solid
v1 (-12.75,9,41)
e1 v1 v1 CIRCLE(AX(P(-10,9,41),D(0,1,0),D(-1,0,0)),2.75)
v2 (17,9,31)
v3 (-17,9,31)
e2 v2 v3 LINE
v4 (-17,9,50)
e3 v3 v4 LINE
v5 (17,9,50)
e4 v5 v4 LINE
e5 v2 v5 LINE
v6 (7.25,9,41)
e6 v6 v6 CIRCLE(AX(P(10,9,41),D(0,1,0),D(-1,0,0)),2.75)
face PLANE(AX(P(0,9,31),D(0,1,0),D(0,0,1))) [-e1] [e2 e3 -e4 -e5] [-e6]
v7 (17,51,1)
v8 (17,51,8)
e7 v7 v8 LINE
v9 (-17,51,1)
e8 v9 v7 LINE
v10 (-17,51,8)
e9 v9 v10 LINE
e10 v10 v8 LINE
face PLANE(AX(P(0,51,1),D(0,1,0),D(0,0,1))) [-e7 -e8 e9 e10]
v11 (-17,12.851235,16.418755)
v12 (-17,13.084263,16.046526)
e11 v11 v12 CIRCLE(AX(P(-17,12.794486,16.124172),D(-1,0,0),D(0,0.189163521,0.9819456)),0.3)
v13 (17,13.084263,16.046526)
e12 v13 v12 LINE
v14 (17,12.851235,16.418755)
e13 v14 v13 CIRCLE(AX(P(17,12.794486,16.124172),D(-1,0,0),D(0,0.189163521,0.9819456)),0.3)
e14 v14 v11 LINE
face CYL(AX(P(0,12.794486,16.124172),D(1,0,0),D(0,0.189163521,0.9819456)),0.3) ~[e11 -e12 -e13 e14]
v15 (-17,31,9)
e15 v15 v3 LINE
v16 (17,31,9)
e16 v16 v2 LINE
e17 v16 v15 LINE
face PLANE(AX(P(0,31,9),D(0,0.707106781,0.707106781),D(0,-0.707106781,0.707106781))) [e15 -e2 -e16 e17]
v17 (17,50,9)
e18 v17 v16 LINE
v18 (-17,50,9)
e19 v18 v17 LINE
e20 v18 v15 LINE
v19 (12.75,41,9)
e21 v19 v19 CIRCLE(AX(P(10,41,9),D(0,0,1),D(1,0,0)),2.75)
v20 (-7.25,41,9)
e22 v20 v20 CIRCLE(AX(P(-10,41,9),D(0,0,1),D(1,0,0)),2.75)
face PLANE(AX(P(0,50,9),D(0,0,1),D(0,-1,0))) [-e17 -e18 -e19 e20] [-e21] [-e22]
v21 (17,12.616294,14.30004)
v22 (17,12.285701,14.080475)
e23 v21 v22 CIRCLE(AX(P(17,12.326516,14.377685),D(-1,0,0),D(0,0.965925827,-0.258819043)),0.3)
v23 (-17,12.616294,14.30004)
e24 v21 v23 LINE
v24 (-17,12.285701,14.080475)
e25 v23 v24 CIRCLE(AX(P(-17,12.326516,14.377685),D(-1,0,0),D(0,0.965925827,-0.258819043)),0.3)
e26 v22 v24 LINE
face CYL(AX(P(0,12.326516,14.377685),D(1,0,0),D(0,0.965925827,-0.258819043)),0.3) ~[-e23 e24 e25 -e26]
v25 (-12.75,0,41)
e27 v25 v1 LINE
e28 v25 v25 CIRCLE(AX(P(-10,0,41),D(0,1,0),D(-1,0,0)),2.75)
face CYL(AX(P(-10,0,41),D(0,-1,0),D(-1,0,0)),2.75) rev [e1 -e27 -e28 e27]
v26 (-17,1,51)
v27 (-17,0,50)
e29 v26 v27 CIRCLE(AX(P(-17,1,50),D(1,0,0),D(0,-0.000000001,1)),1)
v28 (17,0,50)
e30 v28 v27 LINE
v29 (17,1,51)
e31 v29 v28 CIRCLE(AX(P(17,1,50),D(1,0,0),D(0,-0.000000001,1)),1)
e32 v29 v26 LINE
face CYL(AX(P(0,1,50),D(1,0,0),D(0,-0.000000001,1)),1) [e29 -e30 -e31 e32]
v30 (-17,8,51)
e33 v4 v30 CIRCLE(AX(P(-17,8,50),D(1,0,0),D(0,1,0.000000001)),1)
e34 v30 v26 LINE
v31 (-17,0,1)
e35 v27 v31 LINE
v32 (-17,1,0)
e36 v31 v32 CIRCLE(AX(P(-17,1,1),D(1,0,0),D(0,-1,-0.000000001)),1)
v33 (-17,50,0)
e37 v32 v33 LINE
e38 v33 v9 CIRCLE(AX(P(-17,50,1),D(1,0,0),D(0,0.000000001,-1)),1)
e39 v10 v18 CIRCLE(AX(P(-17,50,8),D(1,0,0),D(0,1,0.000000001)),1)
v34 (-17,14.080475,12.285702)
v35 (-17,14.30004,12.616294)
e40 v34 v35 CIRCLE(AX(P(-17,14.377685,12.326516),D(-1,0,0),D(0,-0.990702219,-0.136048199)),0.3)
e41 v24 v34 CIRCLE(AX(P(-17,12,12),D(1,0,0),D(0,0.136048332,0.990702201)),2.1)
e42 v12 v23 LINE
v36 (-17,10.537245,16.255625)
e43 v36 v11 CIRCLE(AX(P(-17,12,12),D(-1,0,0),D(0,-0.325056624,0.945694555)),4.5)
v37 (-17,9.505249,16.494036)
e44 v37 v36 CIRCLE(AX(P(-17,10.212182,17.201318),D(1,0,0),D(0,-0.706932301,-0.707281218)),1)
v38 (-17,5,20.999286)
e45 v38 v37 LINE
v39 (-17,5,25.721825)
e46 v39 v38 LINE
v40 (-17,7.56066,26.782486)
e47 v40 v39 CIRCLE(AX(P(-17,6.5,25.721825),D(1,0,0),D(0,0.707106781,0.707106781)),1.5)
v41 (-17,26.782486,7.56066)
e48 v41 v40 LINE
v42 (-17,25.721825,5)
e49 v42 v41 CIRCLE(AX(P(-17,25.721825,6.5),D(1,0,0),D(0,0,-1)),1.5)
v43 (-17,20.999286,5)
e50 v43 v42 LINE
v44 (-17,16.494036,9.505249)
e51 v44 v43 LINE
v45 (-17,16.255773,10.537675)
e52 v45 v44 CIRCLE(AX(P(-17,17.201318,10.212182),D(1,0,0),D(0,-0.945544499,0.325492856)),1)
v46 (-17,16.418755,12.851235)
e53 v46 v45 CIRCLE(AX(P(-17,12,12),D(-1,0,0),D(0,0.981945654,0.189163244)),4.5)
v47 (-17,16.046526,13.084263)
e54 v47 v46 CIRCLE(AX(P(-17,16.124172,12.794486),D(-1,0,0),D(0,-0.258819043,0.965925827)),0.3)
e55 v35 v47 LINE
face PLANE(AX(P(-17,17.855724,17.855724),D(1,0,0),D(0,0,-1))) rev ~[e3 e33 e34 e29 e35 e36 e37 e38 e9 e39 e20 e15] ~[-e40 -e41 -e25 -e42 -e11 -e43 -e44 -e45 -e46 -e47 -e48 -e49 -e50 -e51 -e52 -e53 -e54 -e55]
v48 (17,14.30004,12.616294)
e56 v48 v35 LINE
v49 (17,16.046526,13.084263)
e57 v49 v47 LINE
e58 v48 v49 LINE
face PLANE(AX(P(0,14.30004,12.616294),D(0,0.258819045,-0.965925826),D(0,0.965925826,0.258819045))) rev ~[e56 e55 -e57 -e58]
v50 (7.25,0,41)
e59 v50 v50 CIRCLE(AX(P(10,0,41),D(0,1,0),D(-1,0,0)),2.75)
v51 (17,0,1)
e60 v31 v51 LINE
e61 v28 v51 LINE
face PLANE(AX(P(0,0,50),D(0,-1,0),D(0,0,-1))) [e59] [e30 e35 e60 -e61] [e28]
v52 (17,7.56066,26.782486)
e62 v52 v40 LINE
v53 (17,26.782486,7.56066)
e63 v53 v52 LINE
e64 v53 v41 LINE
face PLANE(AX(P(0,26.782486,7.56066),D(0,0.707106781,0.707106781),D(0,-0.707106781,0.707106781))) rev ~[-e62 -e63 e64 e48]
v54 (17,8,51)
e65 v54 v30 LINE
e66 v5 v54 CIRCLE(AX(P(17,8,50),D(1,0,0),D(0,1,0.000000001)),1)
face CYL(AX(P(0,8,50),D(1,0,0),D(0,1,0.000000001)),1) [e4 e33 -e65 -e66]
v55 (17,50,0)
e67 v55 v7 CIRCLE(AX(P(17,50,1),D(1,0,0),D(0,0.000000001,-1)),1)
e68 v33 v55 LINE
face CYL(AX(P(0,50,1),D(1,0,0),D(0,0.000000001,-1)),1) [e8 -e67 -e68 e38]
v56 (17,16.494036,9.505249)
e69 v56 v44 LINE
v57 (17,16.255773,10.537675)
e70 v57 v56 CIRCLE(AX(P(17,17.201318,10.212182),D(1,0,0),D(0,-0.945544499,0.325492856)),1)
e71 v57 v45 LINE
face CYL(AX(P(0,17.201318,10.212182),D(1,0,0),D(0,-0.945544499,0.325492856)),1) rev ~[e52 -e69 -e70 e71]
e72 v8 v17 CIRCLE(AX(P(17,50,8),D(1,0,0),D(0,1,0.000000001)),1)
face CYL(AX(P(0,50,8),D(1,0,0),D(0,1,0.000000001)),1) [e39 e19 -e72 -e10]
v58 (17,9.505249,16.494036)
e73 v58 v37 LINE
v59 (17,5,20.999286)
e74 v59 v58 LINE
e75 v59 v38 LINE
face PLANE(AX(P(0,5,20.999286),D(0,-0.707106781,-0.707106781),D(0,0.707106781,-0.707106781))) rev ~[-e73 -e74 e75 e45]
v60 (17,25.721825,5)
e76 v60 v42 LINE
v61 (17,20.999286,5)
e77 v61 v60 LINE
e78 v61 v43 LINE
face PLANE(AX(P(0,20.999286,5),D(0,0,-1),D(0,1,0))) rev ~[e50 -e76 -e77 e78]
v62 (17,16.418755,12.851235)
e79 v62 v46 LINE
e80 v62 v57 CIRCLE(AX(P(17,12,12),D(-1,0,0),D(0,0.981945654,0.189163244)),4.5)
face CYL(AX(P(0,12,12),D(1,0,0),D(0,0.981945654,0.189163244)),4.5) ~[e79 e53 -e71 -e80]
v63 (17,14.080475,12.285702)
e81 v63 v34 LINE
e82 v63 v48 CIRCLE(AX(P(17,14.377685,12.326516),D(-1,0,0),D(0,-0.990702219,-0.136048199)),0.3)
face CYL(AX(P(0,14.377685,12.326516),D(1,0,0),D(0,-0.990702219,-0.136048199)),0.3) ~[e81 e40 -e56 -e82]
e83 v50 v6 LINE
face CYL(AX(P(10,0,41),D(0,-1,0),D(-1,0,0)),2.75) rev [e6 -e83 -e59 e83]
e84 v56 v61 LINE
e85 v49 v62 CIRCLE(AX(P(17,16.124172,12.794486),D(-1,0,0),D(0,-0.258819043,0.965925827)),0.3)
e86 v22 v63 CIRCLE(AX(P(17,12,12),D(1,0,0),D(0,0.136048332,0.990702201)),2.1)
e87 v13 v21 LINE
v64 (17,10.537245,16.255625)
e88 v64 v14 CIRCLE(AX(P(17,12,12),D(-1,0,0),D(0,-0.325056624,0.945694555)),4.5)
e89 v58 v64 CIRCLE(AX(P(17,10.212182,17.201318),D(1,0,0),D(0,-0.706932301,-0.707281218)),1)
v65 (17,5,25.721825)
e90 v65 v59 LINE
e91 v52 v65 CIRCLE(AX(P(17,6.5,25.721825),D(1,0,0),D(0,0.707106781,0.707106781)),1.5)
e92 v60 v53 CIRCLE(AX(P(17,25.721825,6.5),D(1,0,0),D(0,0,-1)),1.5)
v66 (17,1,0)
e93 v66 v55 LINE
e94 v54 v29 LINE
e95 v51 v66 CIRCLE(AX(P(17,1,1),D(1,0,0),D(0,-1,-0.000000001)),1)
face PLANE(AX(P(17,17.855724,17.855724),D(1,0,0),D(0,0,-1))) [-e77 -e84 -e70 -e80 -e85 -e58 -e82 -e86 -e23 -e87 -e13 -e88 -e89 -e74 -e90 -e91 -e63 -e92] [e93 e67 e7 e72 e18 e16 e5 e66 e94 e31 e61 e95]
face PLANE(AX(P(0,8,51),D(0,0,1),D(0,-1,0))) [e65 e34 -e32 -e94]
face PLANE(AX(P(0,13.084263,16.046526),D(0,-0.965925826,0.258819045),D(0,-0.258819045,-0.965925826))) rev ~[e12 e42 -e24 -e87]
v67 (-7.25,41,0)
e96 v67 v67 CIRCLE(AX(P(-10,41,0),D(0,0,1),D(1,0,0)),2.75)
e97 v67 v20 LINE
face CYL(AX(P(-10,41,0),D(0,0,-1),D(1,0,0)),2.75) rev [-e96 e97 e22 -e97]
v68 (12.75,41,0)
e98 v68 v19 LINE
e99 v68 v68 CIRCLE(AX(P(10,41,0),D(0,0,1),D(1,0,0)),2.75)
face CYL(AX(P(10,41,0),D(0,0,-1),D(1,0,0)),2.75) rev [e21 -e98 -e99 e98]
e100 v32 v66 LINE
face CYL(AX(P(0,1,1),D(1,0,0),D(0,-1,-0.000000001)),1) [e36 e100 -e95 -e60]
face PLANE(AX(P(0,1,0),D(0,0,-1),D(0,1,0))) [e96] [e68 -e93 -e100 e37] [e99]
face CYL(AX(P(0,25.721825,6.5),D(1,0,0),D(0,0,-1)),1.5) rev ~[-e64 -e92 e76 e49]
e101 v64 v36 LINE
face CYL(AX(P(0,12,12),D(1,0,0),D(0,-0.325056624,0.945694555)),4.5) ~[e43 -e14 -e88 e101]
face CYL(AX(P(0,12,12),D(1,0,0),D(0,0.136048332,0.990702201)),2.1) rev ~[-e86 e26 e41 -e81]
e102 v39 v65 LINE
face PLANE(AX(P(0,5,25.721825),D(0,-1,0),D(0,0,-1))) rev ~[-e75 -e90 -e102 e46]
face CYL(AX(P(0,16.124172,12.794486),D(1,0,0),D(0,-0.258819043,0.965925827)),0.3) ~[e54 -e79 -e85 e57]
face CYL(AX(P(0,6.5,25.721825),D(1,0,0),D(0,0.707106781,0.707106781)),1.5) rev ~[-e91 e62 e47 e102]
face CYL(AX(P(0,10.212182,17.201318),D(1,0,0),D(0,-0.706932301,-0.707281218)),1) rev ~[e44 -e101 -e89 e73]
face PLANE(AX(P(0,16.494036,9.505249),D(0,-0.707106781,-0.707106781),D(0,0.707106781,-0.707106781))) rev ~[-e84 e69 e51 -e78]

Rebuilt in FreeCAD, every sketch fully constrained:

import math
import FreeCAD as App
import Part
import Sketcher

V = App.Vector
Q = App.Units.Quantity

doc = App.newDocument("Part")
body = doc.addObject("PartDesign::Body", "Body")

sketch1 = body.newObject("Sketcher::SketchObject", "Sketch")
sketch1.AttachmentSupport = (doc.getObject("YZ_Plane"), [""])
sketch1.MapMode = "FlatFace"
sketch1.addGeometry([
    Part.LineSegment(V(0, 50, 0), V(0, 1, 0)),
    Part.ArcOfCircle(Part.Circle(V(1, 1, 0), V(0, 0, 1), 1), math.radians(-180), math.radians(-90)),
    Part.LineSegment(V(1, 0, 0), V(50, 0, 0)),
    Part.ArcOfCircle(Part.Circle(V(50, 1, 0), V(0, 0, 1), 1), math.radians(-90), math.radians(0)),
    Part.LineSegment(V(51, 1, 0), V(51, 8, 0)),
    Part.ArcOfCircle(Part.Circle(V(50, 8, 0), V(0, 0, 1), 1), math.radians(0), math.radians(90)),
    Part.LineSegment(V(50, 9, 0), V(31, 9, 0)),
    Part.LineSegment(V(31, 9, 0), V(9, 31, 0)),
    Part.LineSegment(V(9, 31, 0), V(9, 50, 0)),
    Part.ArcOfCircle(Part.Circle(V(8, 50, 0), V(0, 0, 1), 1), math.radians(0), math.radians(90)),
    Part.LineSegment(V(8, 51, 0), V(1, 51, 0)),
    Part.ArcOfCircle(Part.Circle(V(1, 50, 0), V(0, 0, 1), 1), math.radians(90), math.radians(180)),
    Part.LineSegment(V(5, 20.999286, 0), V(5, 25.721825, 0)),
    Part.ArcOfCircle(Part.Circle(V(6.5, 25.721825, 0), V(0, 0, 1), 1.5), math.radians(45), math.radians(180)),
    Part.LineSegment(V(7.56066, 26.782486, 0), V(26.782486, 7.56066, 0)),
    Part.ArcOfCircle(Part.Circle(V(25.721825, 6.5, 0), V(0, 0, 1), 1.5), math.radians(-90), math.radians(45)),
    Part.LineSegment(V(25.721825, 5, 0), V(20.999286, 5, 0)),
    Part.LineSegment(V(20.999286, 5, 0), V(16.494036, 9.505249, 0)),
    Part.ArcOfCircle(Part.Circle(V(17.201318, 10.212182, 0), V(0, 0, 1), 1), math.radians(161.004563), math.radians(224.985872)),
    Part.ArcOfCircle(Part.Circle(V(12, 12, 0), V(0, 0, 1), 4.5), math.radians(-18.963225), math.radians(10.903956)),
    Part.ArcOfCircle(Part.Circle(V(16.124172, 12.794486, 0), V(0, 0, 1), 0.3), math.radians(10.903955), math.radians(105)),
    Part.LineSegment(V(16.046526, 13.084263, 0), V(14.30004, 12.616294, 0)),
    Part.ArcOfCircle(Part.Circle(V(14.377685, 12.326516, 0), V(0, 0, 1), 0.3), math.radians(105), math.radians(187.819237)),
    Part.ArcOfCircle(Part.Circle(V(12, 12, 0), V(0, 0, 1), 2.1), math.radians(82.180756), math.radians(367.819245)),
    Part.ArcOfCircle(Part.Circle(V(12.326516, 14.377685, 0), V(0, 0, 1), 0.3), math.radians(-97.819244), math.radians(-15)),
    Part.LineSegment(V(12.616294, 14.30004, 0), V(13.084263, 16.046526, 0)),
    Part.ArcOfCircle(Part.Circle(V(12.794486, 16.124172, 0), V(0, 0, 1), 0.3), math.radians(-15), math.radians(79.096028)),
    Part.ArcOfCircle(Part.Circle(V(12, 12, 0), V(0, 0, 1), 4.5), math.radians(79.096043), math.radians(108.969006)),
    Part.ArcOfCircle(Part.Circle(V(10.212182, 17.201318, 0), V(0, 0, 1), 1), math.radians(-134.985864), math.radians(-71.030572)),
    Part.LineSegment(V(9.505249, 16.494036, 0), V(5, 20.999286, 0)),
], False)
sketch1.addConstraint([
    Sketcher.Constraint("Tangent", 0, 2, 1, 1),
    Sketcher.Constraint("Tangent", 1, 2, 2, 1),
    Sketcher.Constraint("Tangent", 2, 2, 3, 1),
    Sketcher.Constraint("Tangent", 3, 2, 4, 1),
    Sketcher.Constraint("Tangent", 4, 2, 5, 1),
    Sketcher.Constraint("Tangent", 5, 2, 6, 1),
    Sketcher.Constraint("Coincident", 6, 2, 7, 1),
    Sketcher.Constraint("Coincident", 7, 2, 8, 1),
    Sketcher.Constraint("Tangent", 8, 2, 9, 1),
    Sketcher.Constraint("Tangent", 9, 2, 10, 1),
    Sketcher.Constraint("Tangent", 10, 2, 11, 1),
    Sketcher.Constraint("Tangent", 11, 2, 0, 1),
    Sketcher.Constraint("Tangent", 12, 2, 13, 2),
    Sketcher.Constraint("Tangent", 13, 1, 14, 1),
    Sketcher.Constraint("Tangent", 14, 2, 15, 2),
    Sketcher.Constraint("Tangent", 15, 1, 16, 1),
    Sketcher.Constraint("Coincident", 16, 2, 17, 1),
    Sketcher.Constraint("Coincident", 17, 2, 18, 2),
    Sketcher.Constraint("Coincident", 18, 1, 19, 1),
    Sketcher.Constraint("Tangent", 19, 2, 20, 1),
    Sketcher.Constraint("Tangent", 20, 2, 21, 1),
    Sketcher.Constraint("Tangent", 21, 2, 22, 1),
    Sketcher.Constraint("Tangent", 22, 2, 23, 2),
    Sketcher.Constraint("Tangent", 23, 1, 24, 1),
    Sketcher.Constraint("Tangent", 24, 2, 25, 1),
    Sketcher.Constraint("Tangent", 25, 2, 26, 1),
    Sketcher.Constraint("Tangent", 26, 2, 27, 1),
    Sketcher.Constraint("Coincident", 27, 2, 28, 2),
    Sketcher.Constraint("Coincident", 28, 1, 29, 1),
    Sketcher.Constraint("Coincident", 29, 2, 12, 1),
    Sketcher.Constraint("Vertical", 0),
    Sketcher.Constraint("Horizontal", 2),
    Sketcher.Constraint("Vertical", 4),
    Sketcher.Constraint("Horizontal", 6),
    Sketcher.Constraint("Vertical", 8),
    Sketcher.Constraint("Horizontal", 10),
    Sketcher.Constraint("Vertical", 12),
    Sketcher.Constraint("Horizontal", 16),
    Sketcher.Constraint("Coincident", 23, 3, 19, 3),
    Sketcher.Constraint("Coincident", 27, 3, 19, 3),
    Sketcher.Constraint("Equal", 1, 3),
    Sketcher.Constraint("Equal", 3, 5),
    Sketcher.Constraint("Equal", 5, 9),
    Sketcher.Constraint("Equal", 9, 11),
    Sketcher.Constraint("Equal", 13, 15),
    Sketcher.Constraint("Equal", 11, 18),
    Sketcher.Constraint("Equal", 20, 22),
    Sketcher.Constraint("Equal", 22, 24),
    Sketcher.Constraint("Equal", 24, 26),
    Sketcher.Constraint("Equal", 19, 27),
    Sketcher.Constraint("Equal", 18, 28),
    Sketcher.Constraint("PointOnObject", 0, 2, -2),
    Sketcher.Constraint("PointOnObject", 1, 2, -1),
    Sketcher.Constraint("Parallel", 7, 14),
    Sketcher.Constraint("Parallel", 14, 17),
    Sketcher.Constraint("Parallel", 17, 29),
    Sketcher.Constraint("Equal", 2, 0),
    Sketcher.Constraint("Equal", 10, 4),
    Sketcher.Constraint("Equal", 6, 8),
    Sketcher.Constraint("Equal", 16, 12),
    Sketcher.Constraint("Equal", 21, 25),
    Sketcher.Constraint("Equal", 17, 29),
    Sketcher.Constraint("Radius", 1, 1.0),
    Sketcher.Constraint("Radius", 13, 1.5),
    Sketcher.Constraint("Radius", 19, 4.5),
    Sketcher.Constraint("Radius", 20, 0.3),
    Sketcher.Constraint("Radius", 23, 2.1),
    Sketcher.Constraint("DistanceX", 2, 1, 2, 2, 49.0),
    Sketcher.Constraint("DistanceX", 6, 2, 6, 1, 19.0),
    Sketcher.Constraint("DistanceX", 10, 2, 10, 1, 7.0),
    Sketcher.Constraint("Angle", 21, Q("-165 deg")),
    Sketcher.Constraint("Angle", 25, Q("75 deg")),
    Sketcher.Constraint("DistanceX", -1, 1, 19, 3, 12.0),
    Sketcher.Constraint("DistanceY", -1, 1, 19, 3, 12.0),
    Sketcher.Constraint("DistanceX", -1, 1, 12, 2, 5.0),
    Sketcher.Constraint("DistanceY", -1, 1, 15, 1, 5.0),
    Sketcher.Constraint("DistanceX", 16, 2, 16, 1, 4.72254),
    Sketcher.Constraint("DistanceY", -1, 1, 22, 2, 12.285702),
    Sketcher.Constraint("DistanceX", 24, 3, 18, 3, 4.874802),
    Sketcher.Constraint("DistanceX", 20, 3, 18, 1, 0.131601),
    Sketcher.Constraint("DistanceY", 25, 2, 27, 2, 0.209099),
    Sketcher.Constraint("DistanceY", -1, 1, 17, 2, 9.505249),
])
pad1 = body.newObject("PartDesign::Pad", "Pad")
pad1.Profile = sketch1
pad1.Type = "TwoLengths"
pad1.Length = 17
pad1.Length2 = 17

sketch2 = body.newObject("Sketcher::SketchObject", "Sketch001")
sketch2.AttachmentSupport = (doc.getObject("XZ_Plane"), [""])
sketch2.MapMode = "FlatFace"
sketch2.addGeometry(Part.Circle(V(-10, 41, 0), V(0, 0, 1), 2.75), False)
sketch2.addConstraint([
    Sketcher.Constraint("Diameter", 0, 5.5),
    Sketcher.Constraint("DistanceX", 0, 3, -1, 1, 10.0),
    Sketcher.Constraint("DistanceY", -1, 1, 0, 3, 41.0),
])
pocket1 = body.newObject("PartDesign::Pocket", "Pocket")
pocket1.Profile = sketch2
pocket1.Length = 9

sketch3 = body.newObject("Sketcher::SketchObject", "Sketch002")
sketch3.AttachmentSupport = (doc.getObject("XZ_Plane"), [""])
sketch3.MapMode = "FlatFace"
sketch3.addGeometry(Part.Circle(V(10, 41, 0), V(0, 0, 1), 2.75), False)
sketch3.addConstraint([
    Sketcher.Constraint("Diameter", 0, 5.5),
    Sketcher.Constraint("DistanceX", -1, 1, 0, 3, 10.0),
    Sketcher.Constraint("DistanceY", -1, 1, 0, 3, 41.0),
])
pocket2 = body.newObject("PartDesign::Pocket", "Pocket001")
pocket2.Profile = sketch3
pocket2.Length = 9

sketch4 = body.newObject("Sketcher::SketchObject", "Sketch003")
sketch4.AttachmentSupport = (doc.getObject("XY_Plane"), [""])
sketch4.MapMode = "FlatFace"
sketch4.addGeometry(Part.Circle(V(-10, 41, 0), V(0, 0, 1), 2.75), False)
sketch4.addConstraint([
    Sketcher.Constraint("Diameter", 0, 5.5),
    Sketcher.Constraint("DistanceX", 0, 3, -1, 1, 10.0),
    Sketcher.Constraint("DistanceY", -1, 1, 0, 3, 41.0),
])
pocket3 = body.newObject("PartDesign::Pocket", "Pocket002")
pocket3.Profile = sketch4
pocket3.Length = 9
pocket3.Reversed = True

sketch5 = body.newObject("Sketcher::SketchObject", "Sketch004")
sketch5.AttachmentSupport = (doc.getObject("XY_Plane"), [""])
sketch5.MapMode = "FlatFace"
sketch5.addGeometry(Part.Circle(V(10, 41, 0), V(0, 0, 1), 2.75), False)
sketch5.addConstraint([
    Sketcher.Constraint("Diameter", 0, 5.5),
    Sketcher.Constraint("DistanceX", -1, 1, 0, 3, 10.0),
    Sketcher.Constraint("DistanceY", -1, 1, 0, 3, 41.0),
])
pocket4 = body.newObject("PartDesign::Pocket", "Pocket003")
pocket4.Profile = sketch5
pocket4.Length = 9
pocket4.Reversed = True

doc.recompute()
